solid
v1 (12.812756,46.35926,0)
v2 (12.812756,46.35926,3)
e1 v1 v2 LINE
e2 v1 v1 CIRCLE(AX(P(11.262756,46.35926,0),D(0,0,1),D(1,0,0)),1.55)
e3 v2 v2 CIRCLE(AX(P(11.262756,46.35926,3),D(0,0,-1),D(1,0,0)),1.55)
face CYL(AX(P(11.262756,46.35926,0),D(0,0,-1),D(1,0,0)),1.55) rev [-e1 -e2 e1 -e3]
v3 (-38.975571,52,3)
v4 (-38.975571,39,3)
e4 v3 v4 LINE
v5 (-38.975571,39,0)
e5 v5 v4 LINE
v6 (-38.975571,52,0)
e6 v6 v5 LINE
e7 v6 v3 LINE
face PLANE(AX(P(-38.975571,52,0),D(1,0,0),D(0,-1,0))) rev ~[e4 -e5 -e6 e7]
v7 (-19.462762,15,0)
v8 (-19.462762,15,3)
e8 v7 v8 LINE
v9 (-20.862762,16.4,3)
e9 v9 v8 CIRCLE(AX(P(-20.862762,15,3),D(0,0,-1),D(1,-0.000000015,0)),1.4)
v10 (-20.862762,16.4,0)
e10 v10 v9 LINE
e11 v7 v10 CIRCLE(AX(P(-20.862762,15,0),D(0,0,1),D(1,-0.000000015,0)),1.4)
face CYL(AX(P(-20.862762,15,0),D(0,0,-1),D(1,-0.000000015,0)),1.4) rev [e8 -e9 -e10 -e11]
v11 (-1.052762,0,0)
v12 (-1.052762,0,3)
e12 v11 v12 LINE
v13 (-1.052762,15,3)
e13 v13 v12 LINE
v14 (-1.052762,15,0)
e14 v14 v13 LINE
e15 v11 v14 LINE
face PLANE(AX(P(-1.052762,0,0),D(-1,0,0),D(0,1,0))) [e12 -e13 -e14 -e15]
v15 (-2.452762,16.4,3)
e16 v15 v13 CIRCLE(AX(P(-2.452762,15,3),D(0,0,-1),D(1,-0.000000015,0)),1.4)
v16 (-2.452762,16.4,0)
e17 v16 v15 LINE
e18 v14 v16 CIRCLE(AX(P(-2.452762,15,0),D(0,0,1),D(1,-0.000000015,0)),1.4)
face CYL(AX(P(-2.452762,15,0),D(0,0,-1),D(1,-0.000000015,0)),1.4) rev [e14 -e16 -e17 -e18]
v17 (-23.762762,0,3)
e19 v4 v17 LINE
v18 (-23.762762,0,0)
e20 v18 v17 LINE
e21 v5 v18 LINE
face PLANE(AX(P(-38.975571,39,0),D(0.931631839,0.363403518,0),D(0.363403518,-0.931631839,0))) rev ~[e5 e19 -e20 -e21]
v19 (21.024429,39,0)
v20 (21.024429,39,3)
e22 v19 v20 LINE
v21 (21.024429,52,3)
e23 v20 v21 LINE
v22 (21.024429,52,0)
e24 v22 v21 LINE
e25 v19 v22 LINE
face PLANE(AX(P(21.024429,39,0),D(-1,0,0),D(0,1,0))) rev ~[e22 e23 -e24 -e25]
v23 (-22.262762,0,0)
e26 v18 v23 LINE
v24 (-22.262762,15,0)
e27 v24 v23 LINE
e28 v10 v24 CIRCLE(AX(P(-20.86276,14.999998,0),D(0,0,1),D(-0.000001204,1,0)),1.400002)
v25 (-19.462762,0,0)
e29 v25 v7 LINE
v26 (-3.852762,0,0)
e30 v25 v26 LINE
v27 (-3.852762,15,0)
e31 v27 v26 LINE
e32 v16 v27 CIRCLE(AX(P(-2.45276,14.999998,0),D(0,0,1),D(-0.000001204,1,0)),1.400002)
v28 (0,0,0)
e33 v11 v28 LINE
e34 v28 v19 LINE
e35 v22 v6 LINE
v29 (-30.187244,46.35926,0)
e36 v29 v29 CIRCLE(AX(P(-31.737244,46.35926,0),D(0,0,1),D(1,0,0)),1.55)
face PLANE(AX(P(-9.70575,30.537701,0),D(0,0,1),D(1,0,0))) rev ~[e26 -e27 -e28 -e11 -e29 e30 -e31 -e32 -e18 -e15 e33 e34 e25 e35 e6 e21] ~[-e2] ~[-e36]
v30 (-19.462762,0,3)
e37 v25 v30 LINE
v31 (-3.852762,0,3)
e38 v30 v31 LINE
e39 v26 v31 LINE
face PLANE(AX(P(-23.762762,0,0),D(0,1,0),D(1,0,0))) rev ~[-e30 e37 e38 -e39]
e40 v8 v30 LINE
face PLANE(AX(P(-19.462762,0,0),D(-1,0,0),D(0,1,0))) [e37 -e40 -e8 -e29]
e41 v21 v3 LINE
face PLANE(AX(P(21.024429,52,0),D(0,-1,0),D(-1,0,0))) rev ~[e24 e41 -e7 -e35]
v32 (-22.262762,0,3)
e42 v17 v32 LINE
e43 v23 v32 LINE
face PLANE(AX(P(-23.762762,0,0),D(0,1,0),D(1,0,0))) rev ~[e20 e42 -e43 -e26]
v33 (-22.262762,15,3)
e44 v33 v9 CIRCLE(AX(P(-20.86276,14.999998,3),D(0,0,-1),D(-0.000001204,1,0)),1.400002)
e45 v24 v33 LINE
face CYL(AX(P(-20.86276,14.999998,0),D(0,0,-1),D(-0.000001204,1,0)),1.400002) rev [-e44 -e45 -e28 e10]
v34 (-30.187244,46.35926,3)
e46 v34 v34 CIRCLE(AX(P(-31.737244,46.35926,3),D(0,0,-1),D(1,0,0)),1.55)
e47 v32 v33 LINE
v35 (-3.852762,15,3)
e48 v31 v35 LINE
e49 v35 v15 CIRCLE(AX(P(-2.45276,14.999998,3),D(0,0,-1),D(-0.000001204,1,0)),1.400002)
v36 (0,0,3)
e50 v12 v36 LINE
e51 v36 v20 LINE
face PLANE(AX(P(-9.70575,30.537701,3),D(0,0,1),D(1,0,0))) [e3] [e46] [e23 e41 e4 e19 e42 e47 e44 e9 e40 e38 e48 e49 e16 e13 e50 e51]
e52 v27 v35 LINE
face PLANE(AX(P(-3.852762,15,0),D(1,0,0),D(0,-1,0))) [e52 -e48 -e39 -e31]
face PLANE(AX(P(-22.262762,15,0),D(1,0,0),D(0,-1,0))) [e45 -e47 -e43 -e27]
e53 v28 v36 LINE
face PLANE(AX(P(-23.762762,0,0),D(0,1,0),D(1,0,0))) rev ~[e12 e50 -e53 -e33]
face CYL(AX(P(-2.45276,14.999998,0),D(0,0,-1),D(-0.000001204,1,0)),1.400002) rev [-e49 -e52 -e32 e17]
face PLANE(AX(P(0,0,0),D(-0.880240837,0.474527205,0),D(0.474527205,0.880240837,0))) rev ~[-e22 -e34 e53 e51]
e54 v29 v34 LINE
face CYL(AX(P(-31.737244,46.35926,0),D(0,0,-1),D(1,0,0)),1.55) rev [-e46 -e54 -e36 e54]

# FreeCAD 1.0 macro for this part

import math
import FreeCAD as App
import Part
import Sketcher
from FreeCAD import Vector

doc = App.newDocument("Part")
body = doc.addObject("PartDesign::Body", "Body")

# Sketch on XY plane
sketch1 = body.newObject("Sketcher::SketchObject", "Sketch")
sketch1.AttachmentSupport = (doc.getObject("XY_Plane"), [""])
sketch1.MapMode = "FlatFace"
sketch1.addGeometry([
    Part.LineSegment(Vector(21, 52, 0), Vector(-39, 52, 0)),  # 0
    Part.LineSegment(Vector(-39, 52, 0), Vector(-39, 39, 0)),  # 1
    Part.LineSegment(Vector(-39, 39, 0), Vector(-24, 0, 0)),  # 2
    Part.LineSegment(Vector(-24, 0, 0), Vector(0, 0, 0)),  # 3
    Part.LineSegment(Vector(0, 0, 0), Vector(21, 39, 0)),  # 4
    Part.LineSegment(Vector(21, 39, 0), Vector(21, 52, 0)),  # 5
], False)
sketch1.addConstraint([
    Sketcher.Constraint("Coincident", 0, 2, 1, 1),
    Sketcher.Constraint("Coincident", 1, 2, 2, 1),
    Sketcher.Constraint("Coincident", 2, 2, 3, 1),
    Sketcher.Constraint("Coincident", 3, 2, 4, 1),
    Sketcher.Constraint("Coincident", 4, 2, 5, 1),
    Sketcher.Constraint("Coincident", 5, 2, 0, 1),
    Sketcher.Constraint("Horizontal", 0),
    Sketcher.Constraint("Vertical", 1),
    Sketcher.Constraint("Horizontal", 3),
    Sketcher.Constraint("Vertical", 5),
    Sketcher.Constraint("Coincident", 3, 2, -1, 1),
    Sketcher.Constraint("Horizontal", 1, 2, 4, 2),
    Sketcher.Constraint("DistanceX", 0, 2, 0, 1, 60.0),
    Sketcher.Constraint("DistanceY", 1, 2, 1, 1, 13.0),
    Sketcher.Constraint("DistanceY", -1, 1, 0, 2, 52.0),
    Sketcher.Constraint("DistanceX", 3, 1, 3, 2, 23.762762),
    Sketcher.Constraint("Distance", 2, 41.86203),
])
pad1 = body.newObject("PartDesign::Pad", "Pad")
pad1.Profile = sketch1
pad1.Length = 3

# Sketch on XY plane
sketch2 = body.newObject("Sketcher::SketchObject", "Sketch001")
sketch2.AttachmentSupport = (doc.getObject("XY_Plane"), [""])
sketch2.MapMode = "FlatFace"
sketch2.addGeometry([
    Part.Circle(Vector(-31.7, 46.4, 0), Vector(0, 0, 1), 1.6),
    Part.Circle(Vector(11.3, 46.4, 0), Vector(0, 0, 1), 1.6),
], False)
sketch2.addConstraint([
    Sketcher.Constraint("Equal", 0, 1),
    Sketcher.Constraint("Horizontal", 0, 3, 1, 3),
    Sketcher.Constraint("Diameter", 0, 3.1),
    Sketcher.Constraint("DistanceX", 0, 3, 1, 3, 43.0),
    Sketcher.Constraint("DistanceY", -1, 1, 0, 3, 46.35926),
    Sketcher.Constraint("DistanceX", 0, 3, -1, 1, 31.737244),
])
pocket1 = body.newObject("PartDesign::Pocket", "Pocket")
pocket1.Profile = sketch2
pocket1.Length = 25
pocket1.Reversed = True

# Sketch on XY plane
sketch3 = body.newObject("Sketcher::SketchObject", "Sketch002")
sketch3.AttachmentSupport = (doc.getObject("XY_Plane"), [""])
sketch3.MapMode = "FlatFace"
sketch3.addGeometry([
    Part.LineSegment(Vector(-3.9, 15, 0), Vector(-3.9, 0, 0)),  # 0
    Part.LineSegment(Vector(-3.9, 0, 0), Vector(-1.1, 0, 0)),  # 1
    Part.LineSegment(Vector(-1.1, 0, 0), Vector(-1.1, 15, 0)),  # 2
    Part.ArcOfCircle(Part.Circle(Vector(-2.5, 15, 0), Vector(0, 0, 1), 1.4), math.radians(0), math.radians(90)),  # 3
    Part.ArcOfCircle(Part.Circle(Vector(-2.5, 15, 0), Vector(0, 0, 1), 1.4), math.radians(90), math.radians(180)),  # 4
    Part.LineSegment(Vector(-22.3, 15, 0), Vector(-22.3, 0, 0)),  # 5
    Part.LineSegment(Vector(-22.3, 0, 0), Vector(-19.5, 0, 0)),  # 6
    Part.LineSegment(Vector(-19.5, 0, 0), Vector(-19.5, 15, 0)),  # 7
    Part.ArcOfCircle(Part.Circle(Vector(-20.9, 15, 0), Vector(0, 0, 1), 1.4), math.radians(0), math.radians(90)),  # 8
    Part.ArcOfCircle(Part.Circle(Vector(-20.9, 15, 0), Vector(0, 0, 1), 1.4), math.radians(90), math.radians(180)),  # 9
], False)
sketch3.addConstraint([
    Sketcher.Constraint("Coincident", 0, 2, 1, 1),
    Sketcher.Constraint("Coincident", 1, 2, 2, 1),
    Sketcher.Constraint("Tangent", 2, 2, 3, 1),
    Sketcher.Constraint("Tangent", 3, 2, 4, 1),
    Sketcher.Constraint("Tangent", 4, 2, 0, 1),
    Sketcher.Constraint("Coincident", 5, 2, 6, 1),
    Sketcher.Constraint("Coincident", 6, 2, 7, 1),
    Sketcher.Constraint("Tangent", 7, 2, 8, 1),
    Sketcher.Constraint("Tangent", 8, 2, 9, 1),
    Sketcher.Constraint("Tangent", 9, 2, 5, 1),
    Sketcher.Constraint("Vertical", 0),
    Sketcher.Constraint("Horizontal", 1),
    Sketcher.Constraint("Vertical", 2),
    Sketcher.Constraint("Vertical", 5),
    Sketcher.Constraint("Horizontal", 6),
    Sketcher.Constraint("Vertical", 7),
    Sketcher.Constraint("Equal", 3, 4),
    Sketcher.Constraint("Equal", 4, 8),
    Sketcher.Constraint("Equal", 8, 9),
    Sketcher.Constraint("PointOnObject", 0, 2, -1),
    Sketcher.Constraint("PointOnObject", 5, 2, -1),
    Sketcher.Constraint("Horizontal", 4, 3, 8, 3),
    Sketcher.Constraint("Vertical", 4, 3, 3, 2),
    Sketcher.Constraint("Vertical", 9, 3, 8, 2),
    Sketcher.Constraint("Radius", 3, 1.4),
    Sketcher.Constraint("DistanceY", 0, 2, 0, 1, 15.0),
    Sketcher.Constraint("DistanceX", 8, 3, 3, 3, 18.41),
    Sketcher.Constraint("DistanceX", 3, 3, -1, 1, 2.452762),
])
pocket2 = body.newObject("PartDesign::Pocket", "Pocket001")
pocket2.Profile = sketch3
pocket2.Length = 25
pocket2.Reversed = True

doc.recompute()
